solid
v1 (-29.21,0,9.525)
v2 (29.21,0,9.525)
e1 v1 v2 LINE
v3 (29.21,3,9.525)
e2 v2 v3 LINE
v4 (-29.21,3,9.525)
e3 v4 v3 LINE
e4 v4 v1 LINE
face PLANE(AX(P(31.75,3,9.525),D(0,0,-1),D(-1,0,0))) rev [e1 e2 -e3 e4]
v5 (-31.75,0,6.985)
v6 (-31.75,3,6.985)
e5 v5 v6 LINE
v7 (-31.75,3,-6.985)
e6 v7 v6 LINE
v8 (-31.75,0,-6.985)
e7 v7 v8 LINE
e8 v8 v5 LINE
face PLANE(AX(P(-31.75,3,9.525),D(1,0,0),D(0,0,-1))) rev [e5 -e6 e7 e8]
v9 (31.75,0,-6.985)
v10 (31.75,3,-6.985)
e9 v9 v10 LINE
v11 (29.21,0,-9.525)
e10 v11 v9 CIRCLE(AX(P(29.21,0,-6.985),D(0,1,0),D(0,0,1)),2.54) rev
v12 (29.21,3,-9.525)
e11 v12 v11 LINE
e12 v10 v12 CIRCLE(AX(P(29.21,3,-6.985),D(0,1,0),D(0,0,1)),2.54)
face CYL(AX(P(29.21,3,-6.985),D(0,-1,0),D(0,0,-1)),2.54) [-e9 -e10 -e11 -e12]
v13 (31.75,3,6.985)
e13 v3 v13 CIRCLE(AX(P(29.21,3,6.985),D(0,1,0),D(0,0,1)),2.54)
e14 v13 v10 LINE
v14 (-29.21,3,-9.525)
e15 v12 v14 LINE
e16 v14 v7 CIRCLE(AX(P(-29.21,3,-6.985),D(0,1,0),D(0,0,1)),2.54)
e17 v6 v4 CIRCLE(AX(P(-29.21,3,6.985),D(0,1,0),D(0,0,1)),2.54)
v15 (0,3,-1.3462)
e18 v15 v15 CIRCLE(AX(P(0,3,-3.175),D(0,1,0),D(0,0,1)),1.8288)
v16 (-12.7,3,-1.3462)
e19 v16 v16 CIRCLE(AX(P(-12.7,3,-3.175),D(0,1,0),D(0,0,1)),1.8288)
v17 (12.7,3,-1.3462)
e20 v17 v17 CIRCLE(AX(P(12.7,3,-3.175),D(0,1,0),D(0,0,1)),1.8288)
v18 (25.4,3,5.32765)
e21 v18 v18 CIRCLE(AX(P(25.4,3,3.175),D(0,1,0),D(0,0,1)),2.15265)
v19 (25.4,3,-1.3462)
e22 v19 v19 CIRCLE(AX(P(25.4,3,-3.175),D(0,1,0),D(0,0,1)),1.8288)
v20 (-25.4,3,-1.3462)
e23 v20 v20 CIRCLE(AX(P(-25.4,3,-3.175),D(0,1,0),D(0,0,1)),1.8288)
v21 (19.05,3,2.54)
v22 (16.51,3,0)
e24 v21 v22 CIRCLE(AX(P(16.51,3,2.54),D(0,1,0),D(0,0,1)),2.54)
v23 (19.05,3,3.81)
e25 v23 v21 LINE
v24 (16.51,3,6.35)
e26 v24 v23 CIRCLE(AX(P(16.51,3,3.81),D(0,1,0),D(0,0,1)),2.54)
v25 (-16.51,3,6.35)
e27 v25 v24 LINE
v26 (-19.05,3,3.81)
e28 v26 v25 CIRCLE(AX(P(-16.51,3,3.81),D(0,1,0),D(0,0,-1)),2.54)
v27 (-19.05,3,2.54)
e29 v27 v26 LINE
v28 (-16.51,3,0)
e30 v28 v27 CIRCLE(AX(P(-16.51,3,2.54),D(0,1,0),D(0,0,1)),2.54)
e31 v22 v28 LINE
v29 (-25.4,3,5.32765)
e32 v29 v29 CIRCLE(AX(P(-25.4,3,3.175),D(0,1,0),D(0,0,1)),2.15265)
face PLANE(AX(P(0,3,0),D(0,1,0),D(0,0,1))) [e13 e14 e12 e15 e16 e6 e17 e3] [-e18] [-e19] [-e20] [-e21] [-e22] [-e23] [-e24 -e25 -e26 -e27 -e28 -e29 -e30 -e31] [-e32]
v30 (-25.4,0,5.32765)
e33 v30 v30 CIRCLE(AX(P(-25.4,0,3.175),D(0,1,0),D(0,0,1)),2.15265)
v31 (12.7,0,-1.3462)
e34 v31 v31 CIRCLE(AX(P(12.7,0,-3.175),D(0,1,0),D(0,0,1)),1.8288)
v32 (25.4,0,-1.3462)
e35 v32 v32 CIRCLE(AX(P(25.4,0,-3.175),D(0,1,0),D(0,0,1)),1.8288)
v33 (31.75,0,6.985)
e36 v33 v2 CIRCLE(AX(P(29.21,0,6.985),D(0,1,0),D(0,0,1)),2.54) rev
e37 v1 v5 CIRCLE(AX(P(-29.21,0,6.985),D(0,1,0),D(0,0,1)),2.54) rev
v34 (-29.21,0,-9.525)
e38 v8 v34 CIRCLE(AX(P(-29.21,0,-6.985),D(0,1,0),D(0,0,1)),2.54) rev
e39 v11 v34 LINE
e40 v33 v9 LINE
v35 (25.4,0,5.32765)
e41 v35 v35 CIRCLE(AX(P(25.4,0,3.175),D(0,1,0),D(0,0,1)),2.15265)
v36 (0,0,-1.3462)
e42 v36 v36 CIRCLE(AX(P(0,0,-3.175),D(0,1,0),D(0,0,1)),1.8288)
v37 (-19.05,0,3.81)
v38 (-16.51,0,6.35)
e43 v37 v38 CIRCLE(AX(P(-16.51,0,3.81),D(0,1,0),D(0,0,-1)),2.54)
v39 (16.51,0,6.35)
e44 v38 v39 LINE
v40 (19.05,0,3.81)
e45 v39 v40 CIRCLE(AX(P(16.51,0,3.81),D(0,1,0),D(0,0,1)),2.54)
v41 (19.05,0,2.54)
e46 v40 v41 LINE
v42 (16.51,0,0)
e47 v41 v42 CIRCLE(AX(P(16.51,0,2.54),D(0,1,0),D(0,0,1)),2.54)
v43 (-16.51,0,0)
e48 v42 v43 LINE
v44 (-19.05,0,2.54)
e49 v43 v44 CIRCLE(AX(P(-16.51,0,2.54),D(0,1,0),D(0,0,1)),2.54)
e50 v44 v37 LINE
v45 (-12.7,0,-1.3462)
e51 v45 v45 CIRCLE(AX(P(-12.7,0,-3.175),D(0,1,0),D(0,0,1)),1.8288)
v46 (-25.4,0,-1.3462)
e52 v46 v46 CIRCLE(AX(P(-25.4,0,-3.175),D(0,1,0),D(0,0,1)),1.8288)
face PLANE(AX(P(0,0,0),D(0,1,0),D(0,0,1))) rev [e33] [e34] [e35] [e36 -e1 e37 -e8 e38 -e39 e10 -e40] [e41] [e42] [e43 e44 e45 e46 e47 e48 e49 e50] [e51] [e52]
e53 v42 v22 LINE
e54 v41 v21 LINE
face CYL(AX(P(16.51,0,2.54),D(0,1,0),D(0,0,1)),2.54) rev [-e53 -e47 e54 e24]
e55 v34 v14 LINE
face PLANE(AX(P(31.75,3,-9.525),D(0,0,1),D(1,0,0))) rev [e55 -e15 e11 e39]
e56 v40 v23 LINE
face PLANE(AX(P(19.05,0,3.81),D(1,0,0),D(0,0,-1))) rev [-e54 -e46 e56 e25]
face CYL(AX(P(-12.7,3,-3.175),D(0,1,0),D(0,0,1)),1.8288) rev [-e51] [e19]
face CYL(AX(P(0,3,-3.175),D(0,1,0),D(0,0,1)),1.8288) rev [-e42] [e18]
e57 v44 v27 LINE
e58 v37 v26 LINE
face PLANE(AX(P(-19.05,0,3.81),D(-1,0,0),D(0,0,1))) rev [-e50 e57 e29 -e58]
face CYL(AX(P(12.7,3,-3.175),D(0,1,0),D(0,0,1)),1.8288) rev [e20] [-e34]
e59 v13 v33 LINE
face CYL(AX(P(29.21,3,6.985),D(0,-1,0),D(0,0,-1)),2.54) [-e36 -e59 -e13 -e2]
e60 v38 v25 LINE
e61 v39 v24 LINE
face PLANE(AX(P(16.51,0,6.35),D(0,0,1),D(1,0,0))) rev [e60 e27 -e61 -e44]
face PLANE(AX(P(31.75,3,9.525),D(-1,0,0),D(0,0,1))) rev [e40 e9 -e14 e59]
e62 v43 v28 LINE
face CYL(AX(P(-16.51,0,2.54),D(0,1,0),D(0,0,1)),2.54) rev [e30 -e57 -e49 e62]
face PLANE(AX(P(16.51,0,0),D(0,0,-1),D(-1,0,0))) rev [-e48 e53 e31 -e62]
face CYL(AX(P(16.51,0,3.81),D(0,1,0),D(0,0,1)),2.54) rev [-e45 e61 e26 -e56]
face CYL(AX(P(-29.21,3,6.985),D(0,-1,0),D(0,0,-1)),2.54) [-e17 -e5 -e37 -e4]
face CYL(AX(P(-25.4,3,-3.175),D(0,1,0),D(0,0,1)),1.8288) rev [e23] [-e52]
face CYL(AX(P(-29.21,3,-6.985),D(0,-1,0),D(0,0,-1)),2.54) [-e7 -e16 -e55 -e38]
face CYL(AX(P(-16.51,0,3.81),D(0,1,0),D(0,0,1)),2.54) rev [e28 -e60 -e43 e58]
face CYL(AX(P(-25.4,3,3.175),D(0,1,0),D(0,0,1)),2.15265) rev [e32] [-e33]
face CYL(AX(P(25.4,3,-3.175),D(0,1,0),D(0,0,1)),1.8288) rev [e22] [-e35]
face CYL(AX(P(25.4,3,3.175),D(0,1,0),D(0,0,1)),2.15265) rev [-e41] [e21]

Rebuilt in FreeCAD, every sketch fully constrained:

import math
import FreeCAD as App
import Part
import Sketcher

V = App.Vector
Q = App.Units.Quantity


def edges_at(feature, points):
    """Names of the edges that pass closest to the given points."""
    edges = feature.Shape.Edges
    near = lambda p: min(range(len(edges)), key=lambda i: edges[i].distToShape(Part.Vertex(*p))[0])
    return sorted({f"Edge{near(p) + 1}" for p in points})


def add_polygon(sketch, points):
    """Adds a closed chain of lines whose ends are joined by coincident constraints."""
    first, n = sketch.GeometryCount, len(points)
    for a, b in zip(points, points[1:] + points[:1]):
        sketch.addGeometry(Part.LineSegment(App.Vector(*a, 0), App.Vector(*b, 0)), False)
    for i in range(n):
        sketch.addConstraint(Sketcher.Constraint("Coincident", first + i, 2, first + (i + 1) % n, 1))

doc = App.newDocument("Part")
body = doc.addObject("PartDesign::Body", "Body")

# Sketch on XZ plane
sketch1 = body.newObject("Sketcher::SketchObject", "Sketch")
sketch1.AttachmentSupport = (doc.getObject("XZ_Plane"), [""])
sketch1.MapMode = "FlatFace"
add_polygon(sketch1, [(-32, -10), (-32, 10), (32, 10), (32, -10)])  # lines 0-3
sketch1.addConstraint(Sketcher.Constraint("Vertical", 0))
sketch1.addConstraint(Sketcher.Constraint("Horizontal", 1))
sketch1.addConstraint(Sketcher.Constraint("Vertical", 2))
sketch1.addConstraint(Sketcher.Constraint("Horizontal", 3))
sketch1.addConstraint(Sketcher.Constraint("Symmetric", 0, 2, 2, 2, -1, 1))
sketch1.addConstraint(Sketcher.Constraint("DistanceX", 1, 1, 1, 2, Q("2.5 in")))
sketch1.addConstraint(Sketcher.Constraint("DistanceY", 0, 1, 0, 2, Q("0.75 in")))
pad1 = body.newObject("PartDesign::Pad", "Pad")
pad1.Profile = sketch1
pad1.Length = 3
pad1.Reversed = True

# Sketch on XZ plane
sketch2 = body.newObject("Sketcher::SketchObject", "Sketch001")
sketch2.AttachmentSupport = (doc.getObject("XZ_Plane"), [""])
sketch2.MapMode = "FlatFace"
sketch2.AttachmentOffset = App.Placement(V(0, 0, -3), App.Rotation())
sketch2.addGeometry(Part.Circle(V(-25.4, -3.2, 0), V(0, 0, 1), 1.8), False)
sketch2.addGeometry(Part.Circle(V(0, -3.2, 0), V(0, 0, 1), 1.8), False)
sketch2.addGeometry(Part.Circle(V(25.4, -3.2, 0), V(0, 0, 1), 1.8), False)
sketch2.addGeometry(Part.Circle(V(12.7, -3.2, 0), V(0, 0, 1), 1.8), False)
sketch2.addGeometry(Part.Circle(V(-12.7, -3.2, 0), V(0, 0, 1), 1.8), False)
sketch2.addConstraint(Sketcher.Constraint("Equal", 0, 1))
sketch2.addConstraint(Sketcher.Constraint("Equal", 1, 2))
sketch2.addConstraint(Sketcher.Constraint("Equal", 2, 3))
sketch2.addConstraint(Sketcher.Constraint("Equal", 3, 4))
sketch2.addConstraint(Sketcher.Constraint("Symmetric", 0, 3, 2, 3, -2))
sketch2.addConstraint(Sketcher.Constraint("Symmetric", 3, 3, 4, 3, -2))
sketch2.addConstraint(Sketcher.Constraint("PointOnObject", 1, 3, -2))
sketch2.addConstraint(Sketcher.Constraint("Horizontal", 0, 3, 1, 3))
sketch2.addConstraint(Sketcher.Constraint("Horizontal", 2, 3, 3, 3))
sketch2.addConstraint(Sketcher.Constraint("Diameter", 0, Q("0.144 in")))
sketch2.addConstraint(Sketcher.Constraint("DistanceX", 0, 3, -1, 1, Q("1 in")))
sketch2.addConstraint(Sketcher.Constraint("DistanceX", 4, 3, 3, 3, Q("1 in")))
sketch2.addConstraint(Sketcher.Constraint("DistanceY", 0, 3, -1, 1, Q("0.125 in")))
doc.recompute()
hole = body.newObject("PartDesign::Hole", "Hole")
hole.Profile = sketch2
hole.ThreadType = "None"
hole.Diameter = Q("0.144 in")
hole.DepthType = "ThroughAll"
hole.Reversed = True

# Sketch on XZ plane
sketch3 = body.newObject("Sketcher::SketchObject", "Sketch002")
sketch3.AttachmentSupport = (doc.getObject("XZ_Plane"), [""])
sketch3.MapMode = "FlatFace"
sketch3.AttachmentOffset = App.Placement(V(0, 0, -3), App.Rotation())
sketch3.addGeometry(Part.Circle(V(-25.4, 3.2, 0), V(0, 0, 1), 2.2), False)
sketch3.addGeometry(Part.Circle(V(25.4, 3.2, 0), V(0, 0, 1), 2.2), False)
sketch3.addConstraint(Sketcher.Constraint("Equal", 0, 1))
sketch3.addConstraint(Sketcher.Constraint("Symmetric", 0, 3, 1, 3, -2))
sketch3.addConstraint(Sketcher.Constraint("DistanceX", 0, 3, -1, 1, Q("1 in")))
sketch3.addConstraint(Sketcher.Constraint("Diameter", 0, Q("0.1695 in")))
sketch3.addConstraint(Sketcher.Constraint("DistanceY", -1, 1, 0, 3, Q("0.125 in")))
doc.recompute()
hole2 = body.newObject("PartDesign::Hole", "Hole001")
hole2.Profile = sketch3
hole2.ThreadType = "None"
hole2.Diameter = Q("0.1695 in")
hole2.DepthType = "ThroughAll"
hole2.Reversed = True
doc.recompute()

fillet = body.newObject("PartDesign::Fillet", "Fillet")
fillet.Base = (hole2, edges_at(hole2, [
    (-31.75, 1.5, -9.525),
    (31.75, 1.5, -9.525),
    (31.75, 1.5, 9.525),
    (-31.75, 1.5, 9.525),
]))
fillet.Radius = Q("0.1 in")

# Sketch on XZ plane
sketch4 = body.newObject("Sketcher::SketchObject", "Sketch003")
sketch4.AttachmentSupport = (doc.getObject("XZ_Plane"), [""])
sketch4.MapMode = "FlatFace"
sketch4.AttachmentOffset = App.Placement(V(0, 0, -3), App.Rotation())
sketch4.addGeometry(Part.LineSegment(V(-16.5, 6.3, 0), V(16.5, 6.3, 0)), False)
sketch4.addGeometry(Part.ArcOfCircle(Part.Circle(V(16.5, 3.8, 0), V(0, 0, 1), 2.5), math.radians(0), math.radians(90)), False)
sketch4.addGeometry(Part.LineSegment(V(19.1, 3.8, 0), V(19.1, 2.5, 0)), False)
sketch4.addGeometry(Part.ArcOfCircle(Part.Circle(V(16.5, 2.5, 0), V(0, 0, 1), 2.5), math.radians(-90), math.radians(0)), False)
sketch4.addGeometry(Part.LineSegment(V(16.5, 0, 0), V(-16.5, 0, 0)), False)
sketch4.addGeometry(Part.ArcOfCircle(Part.Circle(V(-16.5, 2.5, 0), V(0, 0, 1), 2.5), math.radians(-180), math.radians(-90)), False)
sketch4.addGeometry(Part.LineSegment(V(-19.1, 2.5, 0), V(-19.1, 3.8, 0)), False)
sketch4.addGeometry(Part.ArcOfCircle(Part.Circle(V(-16.5, 3.8, 0), V(0, 0, 1), 2.5), math.radians(90), math.radians(180)), False)
sketch4.addConstraint(Sketcher.Constraint("Tangent", 0, 2, 1, 2))
sketch4.addConstraint(Sketcher.Constraint("Tangent", 1, 1, 2, 1))
sketch4.addConstraint(Sketcher.Constraint("Tangent", 2, 2, 3, 2))
sketch4.addConstraint(Sketcher.Constraint("Tangent", 3, 1, 4, 1))
sketch4.addConstraint(Sketcher.Constraint("Tangent", 4, 2, 5, 2))
sketch4.addConstraint(Sketcher.Constraint("Tangent", 5, 1, 6, 1))
sketch4.addConstraint(Sketcher.Constraint("Tangent", 6, 2, 7, 2))
sketch4.addConstraint(Sketcher.Constraint("Tangent", 7, 1, 0, 1))
sketch4.addConstraint(Sketcher.Constraint("Horizontal", 0))
sketch4.addConstraint(Sketcher.Constraint("Vertical", 2))
sketch4.addConstraint(Sketcher.Constraint("Horizontal", 4))
sketch4.addConstraint(Sketcher.Constraint("Vertical", 6))
sketch4.addConstraint(Sketcher.Constraint("Equal", 1, 3))
sketch4.addConstraint(Sketcher.Constraint("Equal", 3, 5))
sketch4.addConstraint(Sketcher.Constraint("Equal", 5, 7))
sketch4.addConstraint(Sketcher.Constraint("Symmetric", 3, 1, 4, 2, -1, 1))
sketch4.addConstraint(Sketcher.Constraint("Radius", 1, Q("0.1 in")))
sketch4.addConstraint(Sketcher.Constraint("DistanceX", 0, 1, 0, 2, Q("1.3 in")))
sketch4.addConstraint(Sketcher.Constraint("DistanceY", 2, 2, 2, 1, Q("0.05 in")))
pocket1 = body.newObject("PartDesign::Pocket", "Pocket")
pocket1.Profile = sketch4
pocket1.Type = "ThroughAll"
pocket1.Reversed = True

doc.recompute()
